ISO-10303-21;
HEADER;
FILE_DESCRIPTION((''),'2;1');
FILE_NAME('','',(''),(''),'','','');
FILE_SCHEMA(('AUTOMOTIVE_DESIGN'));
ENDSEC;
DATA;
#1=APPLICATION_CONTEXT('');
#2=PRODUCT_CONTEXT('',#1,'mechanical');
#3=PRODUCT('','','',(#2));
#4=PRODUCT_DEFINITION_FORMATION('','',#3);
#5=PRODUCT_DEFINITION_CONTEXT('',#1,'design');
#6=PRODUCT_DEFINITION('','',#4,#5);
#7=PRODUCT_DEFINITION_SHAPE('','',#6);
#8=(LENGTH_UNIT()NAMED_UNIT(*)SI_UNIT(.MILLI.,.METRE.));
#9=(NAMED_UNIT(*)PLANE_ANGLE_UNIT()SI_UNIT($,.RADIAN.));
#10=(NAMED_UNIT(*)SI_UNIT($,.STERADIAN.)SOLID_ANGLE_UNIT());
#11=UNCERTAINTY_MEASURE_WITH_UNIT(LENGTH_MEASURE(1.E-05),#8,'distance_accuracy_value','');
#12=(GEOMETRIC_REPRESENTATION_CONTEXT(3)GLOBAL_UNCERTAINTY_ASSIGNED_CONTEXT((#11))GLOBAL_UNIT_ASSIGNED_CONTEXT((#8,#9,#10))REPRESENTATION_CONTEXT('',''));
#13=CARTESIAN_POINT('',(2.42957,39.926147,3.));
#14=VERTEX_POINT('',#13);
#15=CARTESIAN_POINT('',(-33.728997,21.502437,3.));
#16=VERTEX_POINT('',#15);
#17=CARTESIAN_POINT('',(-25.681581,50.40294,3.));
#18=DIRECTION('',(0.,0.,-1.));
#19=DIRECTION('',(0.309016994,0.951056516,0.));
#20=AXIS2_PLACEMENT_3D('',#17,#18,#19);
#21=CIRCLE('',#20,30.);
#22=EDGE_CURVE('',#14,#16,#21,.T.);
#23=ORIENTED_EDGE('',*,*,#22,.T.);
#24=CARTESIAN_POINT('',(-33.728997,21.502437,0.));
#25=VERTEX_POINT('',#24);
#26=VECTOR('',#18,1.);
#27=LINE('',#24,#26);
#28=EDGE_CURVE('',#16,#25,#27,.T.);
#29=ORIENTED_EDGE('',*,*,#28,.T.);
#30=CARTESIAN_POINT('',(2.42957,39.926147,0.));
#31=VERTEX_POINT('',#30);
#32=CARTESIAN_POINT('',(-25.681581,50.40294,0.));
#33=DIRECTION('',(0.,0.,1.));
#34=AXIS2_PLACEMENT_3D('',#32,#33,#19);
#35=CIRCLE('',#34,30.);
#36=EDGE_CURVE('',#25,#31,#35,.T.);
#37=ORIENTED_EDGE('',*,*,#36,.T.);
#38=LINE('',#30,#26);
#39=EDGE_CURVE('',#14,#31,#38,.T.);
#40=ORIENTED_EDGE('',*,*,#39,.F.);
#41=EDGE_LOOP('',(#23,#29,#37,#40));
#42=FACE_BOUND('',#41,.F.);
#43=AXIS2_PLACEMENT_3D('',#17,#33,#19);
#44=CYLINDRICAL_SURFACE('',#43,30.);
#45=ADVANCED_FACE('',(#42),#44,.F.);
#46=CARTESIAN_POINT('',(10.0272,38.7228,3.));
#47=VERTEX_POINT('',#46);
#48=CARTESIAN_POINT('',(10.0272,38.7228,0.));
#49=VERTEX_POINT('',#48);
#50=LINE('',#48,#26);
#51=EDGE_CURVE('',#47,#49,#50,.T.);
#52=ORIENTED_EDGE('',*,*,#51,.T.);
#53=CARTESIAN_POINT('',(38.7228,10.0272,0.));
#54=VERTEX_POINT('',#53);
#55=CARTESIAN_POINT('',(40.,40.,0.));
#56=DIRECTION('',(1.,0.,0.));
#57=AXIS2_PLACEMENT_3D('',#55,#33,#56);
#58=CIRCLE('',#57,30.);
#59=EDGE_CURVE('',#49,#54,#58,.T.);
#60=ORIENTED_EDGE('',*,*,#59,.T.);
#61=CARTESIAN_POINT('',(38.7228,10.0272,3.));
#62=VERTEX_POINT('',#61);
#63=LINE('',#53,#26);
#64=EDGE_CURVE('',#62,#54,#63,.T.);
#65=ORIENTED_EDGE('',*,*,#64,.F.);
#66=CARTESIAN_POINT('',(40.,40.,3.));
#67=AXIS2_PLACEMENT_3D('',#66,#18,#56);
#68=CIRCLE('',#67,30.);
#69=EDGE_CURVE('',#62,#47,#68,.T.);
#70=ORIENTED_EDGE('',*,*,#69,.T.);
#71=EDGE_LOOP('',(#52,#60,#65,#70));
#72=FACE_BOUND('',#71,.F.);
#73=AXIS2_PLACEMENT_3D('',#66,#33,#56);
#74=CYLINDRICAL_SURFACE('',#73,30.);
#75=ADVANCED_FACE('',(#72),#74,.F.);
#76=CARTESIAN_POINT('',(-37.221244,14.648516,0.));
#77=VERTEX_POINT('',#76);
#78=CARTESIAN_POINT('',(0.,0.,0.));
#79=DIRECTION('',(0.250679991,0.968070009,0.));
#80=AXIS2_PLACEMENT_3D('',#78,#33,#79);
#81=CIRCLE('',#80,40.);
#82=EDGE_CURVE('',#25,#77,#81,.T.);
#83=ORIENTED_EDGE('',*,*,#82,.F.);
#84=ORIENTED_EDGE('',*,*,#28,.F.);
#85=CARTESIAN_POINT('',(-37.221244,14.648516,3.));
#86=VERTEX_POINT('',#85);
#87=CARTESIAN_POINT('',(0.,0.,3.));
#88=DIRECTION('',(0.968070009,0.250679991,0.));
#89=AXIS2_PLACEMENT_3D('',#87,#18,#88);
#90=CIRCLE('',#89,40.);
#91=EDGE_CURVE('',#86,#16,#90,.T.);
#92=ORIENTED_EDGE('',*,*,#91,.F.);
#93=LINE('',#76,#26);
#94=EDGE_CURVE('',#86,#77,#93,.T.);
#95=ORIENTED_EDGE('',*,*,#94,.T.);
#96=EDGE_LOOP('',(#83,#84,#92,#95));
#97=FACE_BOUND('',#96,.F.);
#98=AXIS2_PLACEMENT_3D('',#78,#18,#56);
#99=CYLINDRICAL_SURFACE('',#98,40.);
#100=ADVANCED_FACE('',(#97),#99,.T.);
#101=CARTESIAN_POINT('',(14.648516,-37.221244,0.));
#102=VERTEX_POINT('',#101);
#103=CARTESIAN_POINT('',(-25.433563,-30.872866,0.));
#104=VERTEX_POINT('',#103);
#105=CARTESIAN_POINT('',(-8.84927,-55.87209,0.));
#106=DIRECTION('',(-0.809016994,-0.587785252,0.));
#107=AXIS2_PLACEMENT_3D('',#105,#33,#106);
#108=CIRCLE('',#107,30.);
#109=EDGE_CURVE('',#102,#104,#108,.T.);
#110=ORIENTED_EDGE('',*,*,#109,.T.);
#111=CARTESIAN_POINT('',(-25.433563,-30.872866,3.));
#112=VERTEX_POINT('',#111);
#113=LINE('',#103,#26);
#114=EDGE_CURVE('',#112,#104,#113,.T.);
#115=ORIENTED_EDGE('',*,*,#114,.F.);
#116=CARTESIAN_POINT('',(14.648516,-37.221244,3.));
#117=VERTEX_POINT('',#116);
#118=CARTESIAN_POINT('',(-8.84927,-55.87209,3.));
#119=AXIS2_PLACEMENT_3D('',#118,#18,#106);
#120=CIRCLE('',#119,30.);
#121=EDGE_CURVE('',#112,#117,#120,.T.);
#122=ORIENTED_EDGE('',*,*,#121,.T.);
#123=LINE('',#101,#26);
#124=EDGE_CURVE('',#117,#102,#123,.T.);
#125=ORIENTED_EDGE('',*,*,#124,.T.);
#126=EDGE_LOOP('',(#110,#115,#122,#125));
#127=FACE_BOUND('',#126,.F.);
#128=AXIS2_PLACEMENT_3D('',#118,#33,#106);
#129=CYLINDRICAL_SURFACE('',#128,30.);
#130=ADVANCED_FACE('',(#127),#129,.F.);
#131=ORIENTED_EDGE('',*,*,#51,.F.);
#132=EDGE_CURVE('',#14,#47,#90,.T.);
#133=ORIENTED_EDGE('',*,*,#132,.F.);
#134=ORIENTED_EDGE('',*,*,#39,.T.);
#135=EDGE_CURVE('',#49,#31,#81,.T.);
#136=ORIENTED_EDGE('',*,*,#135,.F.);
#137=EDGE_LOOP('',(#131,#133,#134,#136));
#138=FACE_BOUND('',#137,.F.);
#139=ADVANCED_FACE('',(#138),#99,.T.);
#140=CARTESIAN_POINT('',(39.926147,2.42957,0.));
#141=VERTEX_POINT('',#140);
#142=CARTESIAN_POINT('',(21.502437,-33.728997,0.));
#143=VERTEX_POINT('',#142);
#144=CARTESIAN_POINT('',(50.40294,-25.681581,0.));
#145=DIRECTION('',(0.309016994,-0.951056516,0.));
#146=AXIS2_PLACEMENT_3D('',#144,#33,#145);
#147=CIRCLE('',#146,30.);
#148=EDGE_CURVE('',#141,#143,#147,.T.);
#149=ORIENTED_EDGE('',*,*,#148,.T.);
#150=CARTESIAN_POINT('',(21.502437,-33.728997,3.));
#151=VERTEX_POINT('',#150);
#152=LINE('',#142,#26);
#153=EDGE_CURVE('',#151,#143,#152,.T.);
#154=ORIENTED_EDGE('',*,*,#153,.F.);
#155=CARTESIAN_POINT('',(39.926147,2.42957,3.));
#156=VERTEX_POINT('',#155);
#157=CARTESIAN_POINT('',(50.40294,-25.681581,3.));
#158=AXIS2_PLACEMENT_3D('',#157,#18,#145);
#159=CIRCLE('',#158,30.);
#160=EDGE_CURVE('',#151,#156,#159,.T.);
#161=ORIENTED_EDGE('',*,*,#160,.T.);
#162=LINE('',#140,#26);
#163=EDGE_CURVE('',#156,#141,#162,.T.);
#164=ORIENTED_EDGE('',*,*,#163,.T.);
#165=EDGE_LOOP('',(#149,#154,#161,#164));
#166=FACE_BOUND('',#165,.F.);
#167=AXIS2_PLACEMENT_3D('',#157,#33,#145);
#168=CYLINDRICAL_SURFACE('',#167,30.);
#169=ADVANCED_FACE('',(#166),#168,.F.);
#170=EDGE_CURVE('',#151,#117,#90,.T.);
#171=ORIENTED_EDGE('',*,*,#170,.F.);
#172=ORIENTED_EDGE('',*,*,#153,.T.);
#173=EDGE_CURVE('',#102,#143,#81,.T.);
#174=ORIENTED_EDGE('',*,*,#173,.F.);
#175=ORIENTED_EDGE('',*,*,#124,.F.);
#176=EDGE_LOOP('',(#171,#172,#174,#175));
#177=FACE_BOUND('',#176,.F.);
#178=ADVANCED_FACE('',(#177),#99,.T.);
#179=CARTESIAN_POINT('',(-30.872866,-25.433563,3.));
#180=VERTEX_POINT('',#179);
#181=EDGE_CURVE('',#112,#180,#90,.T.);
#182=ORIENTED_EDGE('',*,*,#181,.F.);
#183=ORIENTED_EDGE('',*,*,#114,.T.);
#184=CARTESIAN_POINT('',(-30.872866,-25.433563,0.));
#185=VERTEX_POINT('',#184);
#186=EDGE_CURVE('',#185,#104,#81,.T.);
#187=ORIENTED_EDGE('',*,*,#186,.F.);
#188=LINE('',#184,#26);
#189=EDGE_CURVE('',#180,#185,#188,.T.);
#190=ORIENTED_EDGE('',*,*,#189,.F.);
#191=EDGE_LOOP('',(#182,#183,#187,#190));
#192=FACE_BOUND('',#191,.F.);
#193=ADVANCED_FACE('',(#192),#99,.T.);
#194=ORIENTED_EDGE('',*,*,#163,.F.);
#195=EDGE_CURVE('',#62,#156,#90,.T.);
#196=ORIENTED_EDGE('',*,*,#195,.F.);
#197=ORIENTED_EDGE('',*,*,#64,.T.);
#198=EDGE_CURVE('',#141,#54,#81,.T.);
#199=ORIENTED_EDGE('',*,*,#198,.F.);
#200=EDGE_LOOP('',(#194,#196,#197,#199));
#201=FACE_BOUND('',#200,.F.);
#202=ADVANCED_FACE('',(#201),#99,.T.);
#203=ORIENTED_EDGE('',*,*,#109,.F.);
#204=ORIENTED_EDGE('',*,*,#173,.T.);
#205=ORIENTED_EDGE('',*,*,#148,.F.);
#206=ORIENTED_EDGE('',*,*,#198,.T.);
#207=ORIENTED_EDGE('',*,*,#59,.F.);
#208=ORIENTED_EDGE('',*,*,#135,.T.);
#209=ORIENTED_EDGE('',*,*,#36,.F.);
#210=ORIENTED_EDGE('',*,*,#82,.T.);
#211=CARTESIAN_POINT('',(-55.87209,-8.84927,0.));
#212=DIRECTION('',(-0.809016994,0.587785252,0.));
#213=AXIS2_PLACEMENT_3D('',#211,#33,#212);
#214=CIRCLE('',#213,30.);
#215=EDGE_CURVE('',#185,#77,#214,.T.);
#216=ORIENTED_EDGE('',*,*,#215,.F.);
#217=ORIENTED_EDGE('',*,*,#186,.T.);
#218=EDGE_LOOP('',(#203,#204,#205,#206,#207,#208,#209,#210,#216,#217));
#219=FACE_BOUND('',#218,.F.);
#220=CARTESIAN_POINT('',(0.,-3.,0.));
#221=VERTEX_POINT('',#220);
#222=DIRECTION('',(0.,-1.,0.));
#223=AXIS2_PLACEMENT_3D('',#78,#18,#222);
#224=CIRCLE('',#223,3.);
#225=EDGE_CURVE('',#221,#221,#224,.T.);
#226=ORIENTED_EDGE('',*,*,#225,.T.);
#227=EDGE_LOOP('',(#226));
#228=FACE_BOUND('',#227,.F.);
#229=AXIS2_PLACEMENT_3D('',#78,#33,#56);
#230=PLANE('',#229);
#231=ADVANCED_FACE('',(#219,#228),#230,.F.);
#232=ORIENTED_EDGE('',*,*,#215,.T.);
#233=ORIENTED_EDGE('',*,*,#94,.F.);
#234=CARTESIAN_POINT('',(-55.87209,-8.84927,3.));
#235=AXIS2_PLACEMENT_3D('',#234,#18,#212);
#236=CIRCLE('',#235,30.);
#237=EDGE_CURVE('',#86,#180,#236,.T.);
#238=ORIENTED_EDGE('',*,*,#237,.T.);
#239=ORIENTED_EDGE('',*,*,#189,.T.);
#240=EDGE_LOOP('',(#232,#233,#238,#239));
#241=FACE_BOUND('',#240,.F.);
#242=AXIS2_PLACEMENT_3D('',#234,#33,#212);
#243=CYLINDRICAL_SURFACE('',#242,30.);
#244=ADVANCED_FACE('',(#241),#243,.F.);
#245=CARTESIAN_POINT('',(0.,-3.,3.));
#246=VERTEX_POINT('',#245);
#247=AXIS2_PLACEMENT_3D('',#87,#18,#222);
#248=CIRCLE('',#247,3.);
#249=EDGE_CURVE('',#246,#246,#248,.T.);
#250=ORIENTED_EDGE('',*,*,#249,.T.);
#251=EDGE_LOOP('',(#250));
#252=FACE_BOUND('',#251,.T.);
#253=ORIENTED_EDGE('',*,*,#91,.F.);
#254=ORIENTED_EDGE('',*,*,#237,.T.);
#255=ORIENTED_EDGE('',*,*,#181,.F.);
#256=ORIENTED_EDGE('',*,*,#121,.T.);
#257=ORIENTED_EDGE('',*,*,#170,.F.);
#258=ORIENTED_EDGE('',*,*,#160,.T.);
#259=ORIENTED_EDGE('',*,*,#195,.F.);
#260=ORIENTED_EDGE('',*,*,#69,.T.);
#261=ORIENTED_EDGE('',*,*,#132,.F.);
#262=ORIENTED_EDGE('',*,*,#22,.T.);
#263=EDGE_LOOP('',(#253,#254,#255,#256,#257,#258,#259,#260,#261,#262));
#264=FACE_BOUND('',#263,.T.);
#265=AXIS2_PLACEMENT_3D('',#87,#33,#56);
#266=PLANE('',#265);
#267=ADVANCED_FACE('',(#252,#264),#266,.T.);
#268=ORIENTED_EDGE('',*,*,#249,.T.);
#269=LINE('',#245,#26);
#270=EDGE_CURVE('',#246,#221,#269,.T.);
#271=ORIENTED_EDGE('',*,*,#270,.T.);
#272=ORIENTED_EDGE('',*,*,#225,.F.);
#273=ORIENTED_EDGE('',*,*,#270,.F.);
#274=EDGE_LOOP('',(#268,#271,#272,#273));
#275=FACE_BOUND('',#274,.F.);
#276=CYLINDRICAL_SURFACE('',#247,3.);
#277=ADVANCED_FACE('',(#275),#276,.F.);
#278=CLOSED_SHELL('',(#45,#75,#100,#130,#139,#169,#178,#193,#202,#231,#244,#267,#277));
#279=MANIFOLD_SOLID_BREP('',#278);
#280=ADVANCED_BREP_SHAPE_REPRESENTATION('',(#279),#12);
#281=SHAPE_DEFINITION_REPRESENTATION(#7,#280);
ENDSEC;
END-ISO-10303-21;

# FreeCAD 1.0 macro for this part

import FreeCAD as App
import Part
import Sketcher
Q = App.Units.Quantity

doc = App.newDocument("Part")
body = doc.addObject("PartDesign::Body", "Body")

# Sketch on XY plane
sketch1 = body.newObject("Sketcher::SketchObject", "Sketch")
sketch1.AttachmentSupport = (doc.getObject("XY_Plane"), [""])
sketch1.MapMode = "FlatFace"
sketch1.addGeometry(Part.Circle(App.Vector(0, 0, 0), App.Vector(0, 0, 1), 40), False)
sketch1.addConstraint(Sketcher.Constraint("Coincident", 0, 3, -1, 1))
sketch1.addConstraint(Sketcher.Constraint("Diameter", 0, Q("80 mm")))
pad1 = body.newObject("PartDesign::Pad", "Pad")
pad1.Profile = sketch1
pad1.Length = 3

# Sketch on XY plane
sketch2 = body.newObject("Sketcher::SketchObject", "Sketch001")
sketch2.AttachmentSupport = (doc.getObject("XY_Plane"), [""])
sketch2.MapMode = "FlatFace"
sketch2.AttachmentOffset = App.Placement(App.Vector(0, 0, 3), App.Rotation())
sketch2.addGeometry(Part.Circle(App.Vector(40, 40, 0), App.Vector(0, 0, 1), 30), False)
sketch2.addConstraint(Sketcher.Constraint("Diameter", 0, Q("60 mm")))
sketch2.addConstraint(Sketcher.Constraint("DistanceX", -1, 1, 0, 3, Q("40 mm")))
sketch2.addConstraint(Sketcher.Constraint("DistanceY", -1, 1, 0, 3, Q("40 mm")))
pocket1 = body.newObject("PartDesign::Pocket", "Pocket")
pocket1.Profile = sketch2
pocket1.Type = "ThroughAll"
doc.recompute()

polarpattern = body.newObject("PartDesign::PolarPattern", "PolarPattern")
polarpattern.Originals = [pocket1]
polarpattern.Axis = (doc.getObject("Z_Axis"), [""])
polarpattern.Angle = 360
polarpattern.Occurrences = 5
body.Tip = polarpattern

# Sketch on XY plane
sketch3 = body.newObject("Sketcher::SketchObject", "Sketch002")
sketch3.AttachmentSupport = (doc.getObject("XY_Plane"), [""])
sketch3.MapMode = "FlatFace"
sketch3.AttachmentOffset = App.Placement(App.Vector(0, 0, 3), App.Rotation())
sketch3.addGeometry(Part.Circle(App.Vector(0, 0, 0), App.Vector(0, 0, 1), 3), False)
sketch3.addConstraint(Sketcher.Constraint("Coincident", 0, 3, -1, 1))
sketch3.addConstraint(Sketcher.Constraint("Diameter", 0, Q("6 mm")))
doc.recompute()
hole = body.newObject("PartDesign::Hole", "Hole")
hole.Profile = sketch3
hole.ThreadType = "None"
hole.Diameter = 6
hole.DepthType = "ThroughAll"

doc.recompute()
